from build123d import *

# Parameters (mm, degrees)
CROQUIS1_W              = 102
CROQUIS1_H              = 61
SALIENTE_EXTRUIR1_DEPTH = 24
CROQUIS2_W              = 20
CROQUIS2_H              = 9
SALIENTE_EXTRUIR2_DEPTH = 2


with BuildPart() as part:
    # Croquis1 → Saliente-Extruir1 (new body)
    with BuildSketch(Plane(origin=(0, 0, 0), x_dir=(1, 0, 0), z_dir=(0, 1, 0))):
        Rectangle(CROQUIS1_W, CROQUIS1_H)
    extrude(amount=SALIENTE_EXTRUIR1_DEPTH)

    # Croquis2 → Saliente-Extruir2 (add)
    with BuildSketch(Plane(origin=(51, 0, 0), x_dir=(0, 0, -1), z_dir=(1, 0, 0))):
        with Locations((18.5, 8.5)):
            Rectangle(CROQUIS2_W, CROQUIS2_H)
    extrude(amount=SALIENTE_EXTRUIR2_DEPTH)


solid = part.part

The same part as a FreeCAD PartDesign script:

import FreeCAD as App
import Part
import Sketcher

doc = App.newDocument("Part")
body = doc.addObject("PartDesign::Body", "Body")

# Sketch on XZ plane
sketch1 = doc.addObject("Sketcher::SketchObject", "Sketch")
body.addObject(sketch1)
sketch1.AttachmentSupport = (doc.XZ_Plane, [""])
sketch1.MapMode = "FlatFace"
sketch1.addGeometry([
    Part.LineSegment(App.Vector(-51, -30.5, 0), App.Vector(-51, 30.5, 0)),
    Part.LineSegment(App.Vector(-51, 30.5, 0), App.Vector(51, 30.5, 0)),
    Part.LineSegment(App.Vector(51, 30.5, 0), App.Vector(51, -30.5, 0)),
    Part.LineSegment(App.Vector(51, -30.5, 0), App.Vector(-51, -30.5, 0)),
], False)
sketch1.addConstraint([
    Sketcher.Constraint("Coincident", 0, 2, 1, 1),
    Sketcher.Constraint("Coincident", 1, 2, 2, 1),
    Sketcher.Constraint("Coincident", 2, 2, 3, 1),
    Sketcher.Constraint("Coincident", 3, 2, 0, 1),
    Sketcher.Constraint("Vertical", 0),
    Sketcher.Constraint("Horizontal", 1),
    Sketcher.Constraint("Vertical", 2),
    Sketcher.Constraint("Horizontal", 3),
    Sketcher.Constraint("Symmetric", 0, 2, 2, 2, -1, 1),
    Sketcher.Constraint("DistanceX", 1, 1, 1, 2, 102.0),
    Sketcher.Constraint("DistanceY", 0, 1, 0, 2, 61.0),
])
pad1 = doc.addObject("PartDesign::Pad", "Pad")
body.addObject(pad1)
pad1.Profile = sketch1
pad1.Length = 24
pad1.Reversed = True

# Sketch on YZ plane
sketch2 = doc.addObject("Sketcher::SketchObject", "Sketch001")
body.addObject(sketch2)
sketch2.AttachmentSupport = (doc.YZ_Plane, [""])
sketch2.MapMode = "FlatFace"
sketch2.AttachmentOffset = App.Placement(App.Vector(0, 0, 51), App.Rotation())
sketch2.addGeometry([
    Part.LineSegment(App.Vector(13, -8.5, 0), App.Vector(4, -8.5, 0)),
    Part.LineSegment(App.Vector(4, -8.5, 0), App.Vector(4, -28.5, 0)),
    Part.LineSegment(App.Vector(4, -28.5, 0), App.Vector(13, -28.5, 0)),
    Part.LineSegment(App.Vector(13, -28.5, 0), App.Vector(13, -8.5, 0)),
], False)
sketch2.addConstraint([
    Sketcher.Constraint("Coincident", 0, 2, 1, 1),
    Sketcher.Constraint("Coincident", 1, 2, 2, 1),
    Sketcher.Constraint("Coincident", 2, 2, 3, 1),
    Sketcher.Constraint("Coincident", 3, 2, 0, 1),
    Sketcher.Constraint("Horizontal", 0),
    Sketcher.Constraint("Vertical", 1),
    Sketcher.Constraint("Horizontal", 2),
    Sketcher.Constraint("Vertical", 3),
    Sketcher.Constraint("DistanceX", 0, 2, 0, 1, 9.0),
    Sketcher.Constraint("DistanceY", 1, 2, 1, 1, 20.0),
    Sketcher.Constraint("DistanceX", -1, 1, 0, 2, 4.0),
    Sketcher.Constraint("DistanceY", 0, 2, -1, 1, 8.5),
])
pad2 = doc.addObject("PartDesign::Pad", "Pad001")
body.addObject(pad2)
pad2.Profile = sketch2
pad2.Length = 2

doc.recompute()
